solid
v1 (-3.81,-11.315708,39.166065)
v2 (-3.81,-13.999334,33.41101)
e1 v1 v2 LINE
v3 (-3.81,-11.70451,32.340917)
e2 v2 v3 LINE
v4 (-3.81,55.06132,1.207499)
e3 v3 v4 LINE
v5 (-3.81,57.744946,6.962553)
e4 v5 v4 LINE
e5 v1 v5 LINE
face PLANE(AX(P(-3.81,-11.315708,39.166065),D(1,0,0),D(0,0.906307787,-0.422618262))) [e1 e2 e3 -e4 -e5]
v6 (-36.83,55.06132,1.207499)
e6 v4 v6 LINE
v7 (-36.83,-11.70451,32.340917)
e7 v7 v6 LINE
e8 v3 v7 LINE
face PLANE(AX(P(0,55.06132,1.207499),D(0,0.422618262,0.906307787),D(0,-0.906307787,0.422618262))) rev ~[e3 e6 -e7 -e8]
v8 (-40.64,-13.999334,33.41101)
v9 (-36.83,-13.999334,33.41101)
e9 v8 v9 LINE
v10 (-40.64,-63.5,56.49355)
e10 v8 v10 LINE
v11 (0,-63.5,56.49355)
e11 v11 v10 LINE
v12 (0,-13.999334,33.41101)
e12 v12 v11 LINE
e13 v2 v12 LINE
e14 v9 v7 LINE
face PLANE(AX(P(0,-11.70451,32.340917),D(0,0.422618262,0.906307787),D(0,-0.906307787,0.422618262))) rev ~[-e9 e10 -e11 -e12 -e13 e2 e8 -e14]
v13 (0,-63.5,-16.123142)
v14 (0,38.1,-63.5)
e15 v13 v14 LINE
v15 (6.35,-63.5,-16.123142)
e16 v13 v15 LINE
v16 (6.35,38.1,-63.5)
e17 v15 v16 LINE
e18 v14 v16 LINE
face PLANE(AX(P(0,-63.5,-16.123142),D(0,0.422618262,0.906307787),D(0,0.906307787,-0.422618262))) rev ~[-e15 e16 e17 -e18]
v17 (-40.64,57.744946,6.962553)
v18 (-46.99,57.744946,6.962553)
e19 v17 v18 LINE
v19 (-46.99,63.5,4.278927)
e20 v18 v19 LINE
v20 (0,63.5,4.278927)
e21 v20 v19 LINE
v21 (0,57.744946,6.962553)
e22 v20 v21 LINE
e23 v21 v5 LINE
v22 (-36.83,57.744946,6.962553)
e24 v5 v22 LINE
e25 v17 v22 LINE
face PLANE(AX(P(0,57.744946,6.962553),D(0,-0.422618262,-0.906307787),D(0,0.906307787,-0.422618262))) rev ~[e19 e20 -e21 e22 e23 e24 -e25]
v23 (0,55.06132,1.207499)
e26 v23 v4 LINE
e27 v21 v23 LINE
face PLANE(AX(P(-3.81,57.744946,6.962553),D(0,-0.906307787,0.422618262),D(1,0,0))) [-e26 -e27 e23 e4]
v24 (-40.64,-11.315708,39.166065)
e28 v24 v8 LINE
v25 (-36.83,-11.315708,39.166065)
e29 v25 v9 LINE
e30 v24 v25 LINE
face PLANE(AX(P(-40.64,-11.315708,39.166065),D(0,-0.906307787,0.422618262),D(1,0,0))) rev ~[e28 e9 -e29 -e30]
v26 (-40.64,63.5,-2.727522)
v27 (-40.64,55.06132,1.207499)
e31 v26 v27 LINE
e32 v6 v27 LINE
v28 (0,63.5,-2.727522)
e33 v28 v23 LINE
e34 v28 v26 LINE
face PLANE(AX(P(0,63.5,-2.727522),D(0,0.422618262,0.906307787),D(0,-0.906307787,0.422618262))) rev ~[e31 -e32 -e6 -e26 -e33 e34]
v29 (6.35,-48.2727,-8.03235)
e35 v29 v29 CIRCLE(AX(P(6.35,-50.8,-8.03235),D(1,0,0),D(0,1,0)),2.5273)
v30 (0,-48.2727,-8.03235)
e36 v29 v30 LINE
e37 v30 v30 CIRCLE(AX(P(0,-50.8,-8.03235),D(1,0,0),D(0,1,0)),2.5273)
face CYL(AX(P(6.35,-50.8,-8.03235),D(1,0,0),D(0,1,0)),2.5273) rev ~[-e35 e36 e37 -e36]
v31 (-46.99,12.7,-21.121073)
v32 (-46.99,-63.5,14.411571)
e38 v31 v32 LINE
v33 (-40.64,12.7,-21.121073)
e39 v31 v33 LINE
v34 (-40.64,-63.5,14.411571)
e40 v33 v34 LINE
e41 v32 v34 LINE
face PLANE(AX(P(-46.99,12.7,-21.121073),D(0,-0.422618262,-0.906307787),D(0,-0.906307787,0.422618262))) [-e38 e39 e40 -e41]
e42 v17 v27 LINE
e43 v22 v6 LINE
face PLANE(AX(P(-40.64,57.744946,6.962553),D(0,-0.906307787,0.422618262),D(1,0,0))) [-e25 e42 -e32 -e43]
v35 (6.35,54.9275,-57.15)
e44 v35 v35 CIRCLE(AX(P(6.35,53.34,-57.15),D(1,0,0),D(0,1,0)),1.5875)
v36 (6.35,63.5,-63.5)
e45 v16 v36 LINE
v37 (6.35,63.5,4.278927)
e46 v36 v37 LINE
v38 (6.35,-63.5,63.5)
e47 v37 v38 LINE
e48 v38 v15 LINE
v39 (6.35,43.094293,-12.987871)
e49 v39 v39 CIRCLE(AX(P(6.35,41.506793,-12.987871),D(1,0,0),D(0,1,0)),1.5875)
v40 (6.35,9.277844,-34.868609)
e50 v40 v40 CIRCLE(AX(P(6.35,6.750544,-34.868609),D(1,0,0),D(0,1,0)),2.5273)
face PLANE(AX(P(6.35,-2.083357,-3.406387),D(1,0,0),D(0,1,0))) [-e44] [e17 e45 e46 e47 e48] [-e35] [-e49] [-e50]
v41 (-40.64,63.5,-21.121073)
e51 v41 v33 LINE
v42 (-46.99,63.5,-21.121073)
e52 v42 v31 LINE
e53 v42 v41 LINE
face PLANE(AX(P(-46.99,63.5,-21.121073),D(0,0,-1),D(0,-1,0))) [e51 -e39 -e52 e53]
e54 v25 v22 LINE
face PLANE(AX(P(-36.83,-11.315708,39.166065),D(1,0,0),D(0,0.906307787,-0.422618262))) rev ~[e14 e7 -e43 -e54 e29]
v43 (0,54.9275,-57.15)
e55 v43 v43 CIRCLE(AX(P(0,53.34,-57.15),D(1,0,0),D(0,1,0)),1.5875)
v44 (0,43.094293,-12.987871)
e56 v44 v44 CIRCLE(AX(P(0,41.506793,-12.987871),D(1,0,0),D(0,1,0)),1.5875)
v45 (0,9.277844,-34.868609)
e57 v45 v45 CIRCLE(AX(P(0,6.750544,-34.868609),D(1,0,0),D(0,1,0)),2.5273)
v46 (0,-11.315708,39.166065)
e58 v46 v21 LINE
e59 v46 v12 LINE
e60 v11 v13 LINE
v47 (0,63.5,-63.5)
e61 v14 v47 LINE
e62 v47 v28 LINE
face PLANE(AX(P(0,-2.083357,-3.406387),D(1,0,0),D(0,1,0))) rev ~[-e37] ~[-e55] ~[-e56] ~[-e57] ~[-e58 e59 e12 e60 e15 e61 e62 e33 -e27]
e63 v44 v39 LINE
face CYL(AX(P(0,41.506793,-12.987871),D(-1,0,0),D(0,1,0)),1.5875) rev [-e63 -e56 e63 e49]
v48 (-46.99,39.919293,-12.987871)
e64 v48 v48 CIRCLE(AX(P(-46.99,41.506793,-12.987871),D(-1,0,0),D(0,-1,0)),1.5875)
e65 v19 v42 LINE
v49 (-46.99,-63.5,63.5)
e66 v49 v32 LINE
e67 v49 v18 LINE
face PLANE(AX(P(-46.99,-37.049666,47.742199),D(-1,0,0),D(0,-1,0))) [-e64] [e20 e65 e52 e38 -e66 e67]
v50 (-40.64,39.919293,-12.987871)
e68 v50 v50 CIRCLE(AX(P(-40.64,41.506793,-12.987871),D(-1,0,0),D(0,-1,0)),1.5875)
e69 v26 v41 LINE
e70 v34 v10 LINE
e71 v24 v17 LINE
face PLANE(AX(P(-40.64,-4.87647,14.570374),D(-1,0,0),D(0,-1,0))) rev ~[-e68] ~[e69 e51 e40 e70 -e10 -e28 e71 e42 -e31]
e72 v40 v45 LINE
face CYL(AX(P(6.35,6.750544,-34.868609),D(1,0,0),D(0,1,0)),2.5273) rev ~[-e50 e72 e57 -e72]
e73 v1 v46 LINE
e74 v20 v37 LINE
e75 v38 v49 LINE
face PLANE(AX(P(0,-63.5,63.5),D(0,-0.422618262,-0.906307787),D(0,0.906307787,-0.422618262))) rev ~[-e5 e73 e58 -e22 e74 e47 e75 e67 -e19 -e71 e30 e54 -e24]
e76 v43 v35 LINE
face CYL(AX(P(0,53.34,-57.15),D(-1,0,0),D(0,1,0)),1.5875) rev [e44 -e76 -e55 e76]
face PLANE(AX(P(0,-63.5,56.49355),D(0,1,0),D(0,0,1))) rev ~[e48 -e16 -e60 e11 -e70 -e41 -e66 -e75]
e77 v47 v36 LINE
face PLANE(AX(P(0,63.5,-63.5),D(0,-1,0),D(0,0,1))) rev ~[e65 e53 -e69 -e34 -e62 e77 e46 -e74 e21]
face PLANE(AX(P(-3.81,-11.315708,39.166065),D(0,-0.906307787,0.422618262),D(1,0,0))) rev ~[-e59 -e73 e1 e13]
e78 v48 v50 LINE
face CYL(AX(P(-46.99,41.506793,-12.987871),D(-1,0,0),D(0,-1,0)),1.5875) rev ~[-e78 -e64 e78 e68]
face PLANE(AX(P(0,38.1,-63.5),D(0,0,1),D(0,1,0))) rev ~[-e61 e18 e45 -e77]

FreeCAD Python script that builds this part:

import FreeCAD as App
import Part
import Sketcher

V = App.Vector
Q = App.Units.Quantity

doc = App.newDocument("Part")
params = doc.addObject("Spreadsheet::Sheet", "Params")
for row, (alias, value) in enumerate([
    ("sketch1_width", "1 in"),
    ("sketch1_diameter", "0.125 in"),
    ("pad1_length", "0.25 in"),
    ("sketch2_length", "2.25 in"),
    ("sketch2_length2", "0.25 in"),
    ("pad2_length", "1.85 in"),
    ("sketch3_width", "2 in"),
    ("sketch3_height", "1 in"),
    ("sketch3_diameter", "0.125 in"),
    ("pad3_length", "0.25 in"),
    ("sketch4_height", "3 in"),
    ("sketch4_width", "0.15 in"),
    ("sketch5_diameter", "0.199 in"),
], start=1):
    params.set(f"A{row}", alias)
    params.set(f"B{row}", "=" + value)
    params.setAlias(f"B{row}", alias)

body = doc.addObject("PartDesign::Body", "Body")

# Sketch on YZ plane
sketch1 = body.newObject("Sketcher::SketchObject", "Sketch")
sketch1.AttachmentSupport = (doc.getObject("YZ_Plane"), [""])
sketch1.MapMode = "FlatFace"
sketch1.addGeometry(Part.LineSegment(V(63.5, -63.5, 0), V(63.5, 4.3, 0)), False)
sketch1.addGeometry(Part.LineSegment(V(63.5, 4.3, 0), V(-63.5, 63.5, 0)), False)
sketch1.addGeometry(Part.LineSegment(V(-63.5, 63.5, 0), V(-63.5, -16.1, 0)), False)
sketch1.addGeometry(Part.LineSegment(V(-63.5, -16.1, 0), V(38.1, -63.5, 0)), False)
sketch1.addGeometry(Part.LineSegment(V(38.1, -63.5, 0), V(63.5, -63.5, 0)), False)
sketch1.addGeometry(Part.Circle(V(53.3, -57.1, 0), V(0, 0, 1), 1.6), False)
sketch1.addGeometry(Part.Circle(V(41.5, -13, 0), V(0, 0, 1), 1.6), False)
sketch1.addConstraint(Sketcher.Constraint("Coincident", 0, 2, 1, 1))
sketch1.addConstraint(Sketcher.Constraint("Coincident", 1, 2, 2, 1))
sketch1.addConstraint(Sketcher.Constraint("Coincident", 2, 2, 3, 1))
sketch1.addConstraint(Sketcher.Constraint("Coincident", 3, 2, 4, 1))
sketch1.addConstraint(Sketcher.Constraint("Coincident", 4, 2, 0, 1))
sketch1.addConstraint(Sketcher.Constraint("Vertical", 0))
sketch1.addConstraint(Sketcher.Constraint("Vertical", 2))
sketch1.addConstraint(Sketcher.Constraint("Horizontal", 4))
sketch1.addConstraint(Sketcher.Constraint("Equal", 5, 6))
sketch1.addConstraint(Sketcher.Constraint("Symmetric", 1, 2, 4, 2, -1, 1))
sketch1.addConstraint(Sketcher.Constraint("Parallel", 1, 3))
sketch1.addConstraint(Sketcher.Constraint("DistanceX", 4, 1, 4, 2, Q("1 in")))
sketch1.addConstraint(Sketcher.Constraint("Diameter", 5, Q("0.125 in")))
sketch1.addConstraint(Sketcher.Constraint("Angle", 1, Q("155 deg")))
sketch1.addConstraint(Sketcher.Constraint("DistanceX", 1, 2, 0, 2, Q("5 in")))
sketch1.addConstraint(Sketcher.Constraint("DistanceY", 3, 2, 1, 2, Q("5 in")))
sketch1.addConstraint(Sketcher.Constraint("DistanceX", -1, 1, 5, 3, Q("2.1 in")))
sketch1.addConstraint(Sketcher.Constraint("DistanceY", 5, 3, -1, 1, Q("2.25 in")))
sketch1.addConstraint(Sketcher.Constraint("DistanceY", 6, 3, 0, 2, Q("17.266799 mm")))
sketch1.addConstraint(Sketcher.Constraint("DistanceX", -1, 1, 6, 3, Q("41.506793 mm")))
sketch1.setExpression("Constraints[11]", "Params.sketch1_width")
sketch1.setExpression("Constraints[12]", "Params.sketch1_diameter")
pad1 = body.newObject("PartDesign::Pad", "Pad")
pad1.Profile = sketch1
pad1.setExpression("Length", "Params.pad1_length")

# Sketch on YZ plane
sketch2 = body.newObject("Sketcher::SketchObject", "Sketch001")
sketch2.AttachmentSupport = (doc.getObject("YZ_Plane"), [""])
sketch2.MapMode = "FlatFace"
sketch2.addGeometry(Part.LineSegment(V(-12, 32, 0), V(-64, 56, 0)), False)
sketch2.addGeometry(Part.LineSegment(V(-64, 56, 0), V(-64, 64, 0)), False)
sketch2.addGeometry(Part.LineSegment(V(-64, 64, 0), V(58, 7, 0)), False)
sketch2.addGeometry(Part.LineSegment(V(58, 7, 0), V(64, 4, 0)), False)
sketch2.addGeometry(Part.LineSegment(V(64, 4, 0), V(64, -3, 0)), False)
sketch2.addGeometry(Part.LineSegment(V(64, -3, 0), V(55, 1, 0)), False)
sketch2.addGeometry(Part.LineSegment(V(55, 1, 0), V(-12, 32, 0)), False)
sketch2.addConstraint(Sketcher.Constraint("Coincident", 0, 2, 1, 1))
sketch2.addConstraint(Sketcher.Constraint("Coincident", 1, 2, 2, 1))
sketch2.addConstraint(Sketcher.Constraint("Coincident", 2, 2, 3, 1))
sketch2.addConstraint(Sketcher.Constraint("Coincident", 3, 2, 4, 1))
sketch2.addConstraint(Sketcher.Constraint("Coincident", 4, 2, 5, 1))
sketch2.addConstraint(Sketcher.Constraint("Coincident", 5, 2, 6, 1))
sketch2.addConstraint(Sketcher.Constraint("Coincident", 6, 2, 0, 1))
sketch2.addConstraint(Sketcher.Constraint("Vertical", 1))
sketch2.addConstraint(Sketcher.Constraint("Vertical", 4))
sketch2.addConstraint(Sketcher.Constraint("Parallel", 0, 2))
sketch2.addConstraint(Sketcher.Constraint("Parallel", 2, 3))
sketch2.addConstraint(Sketcher.Constraint("Parallel", 3, 5))
sketch2.addConstraint(Sketcher.Constraint("Parallel", 5, 6))
sketch2.addConstraint(Sketcher.Constraint("Angle", 0, Q("155 deg")))
sketch2.addConstraint(Sketcher.Constraint("DistanceX", 0, 2, 3, 2, Q("5 in")))
sketch2.addConstraint(Sketcher.Constraint("DistanceX", 0, 2, -1, 1, Q("2.5 in")))
sketch2.addConstraint(Sketcher.Constraint("DistanceY", -1, 1, 1, 2, Q("2.5 in")))
sketch2.addConstraint(Sketcher.Constraint("Distance", 0, Q("2.25 in")))
sketch2.addConstraint(Sketcher.Constraint("Distance", 3, Q("0.25 in")))
sketch2.addConstraint(Sketcher.Constraint("DistanceY", 1, 1, 1, 2, Q("7.00645 mm")))
sketch2.addConstraint(Sketcher.Constraint("DistanceY", -1, 1, 5, 2, Q("1.207499 mm")))
sketch2.setExpression("Constraints[17]", "Params.sketch2_length")
sketch2.setExpression("Constraints[18]", "Params.sketch2_length2")
pad2 = body.newObject("PartDesign::Pad", "Pad001")
pad2.Profile = sketch2
pad2.setExpression("Length", "Params.pad2_length")
pad2.Reversed = True

# Sketch on YZ plane
sketch3 = body.newObject("Sketcher::SketchObject", "Sketch002")
sketch3.AttachmentSupport = (doc.getObject("YZ_Plane"), [""])
sketch3.MapMode = "FlatFace"
sketch3.AttachmentOffset = App.Placement(V(0, 0, -1.85 * 25.4), App.Rotation())
sketch3.addGeometry(Part.LineSegment(V(-63.5, 63.5, 0), V(63.5, 4.3, 0)), False)
sketch3.addGeometry(Part.LineSegment(V(63.5, 4.3, 0), V(63.5, -21.1, 0)), False)
sketch3.addGeometry(Part.LineSegment(V(63.5, -21.1, 0), V(12.7, -21.1, 0)), False)
sketch3.addGeometry(Part.LineSegment(V(12.7, -21.1, 0), V(-63.5, 14.4, 0)), False)
sketch3.addGeometry(Part.LineSegment(V(-63.5, 14.4, 0), V(-63.5, 63.5, 0)), False)
sketch3.addGeometry(Part.Circle(V(41.5, -13, 0), V(0, 0, 1), 1.6), False)
sketch3.addConstraint(Sketcher.Constraint("Coincident", 0, 2, 1, 1))
sketch3.addConstraint(Sketcher.Constraint("Coincident", 1, 2, 2, 1))
sketch3.addConstraint(Sketcher.Constraint("Coincident", 2, 2, 3, 1))
sketch3.addConstraint(Sketcher.Constraint("Coincident", 3, 2, 4, 1))
sketch3.addConstraint(Sketcher.Constraint("Coincident", 4, 2, 0, 1))
sketch3.addConstraint(Sketcher.Constraint("Vertical", 1))
sketch3.addConstraint(Sketcher.Constraint("Horizontal", 2))
sketch3.addConstraint(Sketcher.Constraint("Vertical", 4))
sketch3.addConstraint(Sketcher.Constraint("Parallel", 0, 3))
sketch3.addConstraint(Sketcher.Constraint("DistanceX", 2, 2, 2, 1, Q("2 in")))
sketch3.addConstraint(Sketcher.Constraint("DistanceY", 1, 2, 1, 1, Q("1 in")))
sketch3.addConstraint(Sketcher.Constraint("Diameter", 5, Q("0.125 in")))
sketch3.addConstraint(Sketcher.Constraint("Angle", 0, Q("-25 deg")))
sketch3.addConstraint(Sketcher.Constraint("DistanceX", 3, 2, 2, 2, Q("3 in")))
sketch3.addConstraint(Sketcher.Constraint("DistanceX", -1, 1, 0, 2, Q("2.5 in")))
sketch3.addConstraint(Sketcher.Constraint("DistanceY", -1, 1, 4, 2, Q("2.5 in")))
sketch3.addConstraint(Sketcher.Constraint("DistanceY", 5, 3, 0, 2, Q("17.266799 mm")))
sketch3.addConstraint(Sketcher.Constraint("DistanceX", -1, 1, 5, 3, Q("41.506793 mm")))
sketch3.setExpression("Constraints[9]", "Params.sketch3_width")
sketch3.setExpression("Constraints[10]", "Params.sketch3_height")
sketch3.setExpression("Constraints[11]", "Params.sketch3_diameter")
pad3 = body.newObject("PartDesign::Pad", "Pad002")
pad3.Profile = sketch3
pad3.setExpression("Length", "Params.pad3_length")

# Sketch on an angled plane
sketch4 = body.newObject("Sketcher::SketchObject", "Sketch003")
sketch4.Placement = App.Placement(V(0, 12.980418, 27.836596), App.Rotation(V(1, 0, 0), V(0, 0.906307787, -0.422618262), V(0, 0.422618262, 0.906307787), "ZXY"))
sketch4.addGeometry(Part.LineSegment(V(-3.8, 49.4, 0), V(-3.8, -26.8, 0)), False)
sketch4.addGeometry(Part.LineSegment(V(-3.8, -26.8, 0), V(0, -26.8, 0)), False)
sketch4.addGeometry(Part.LineSegment(V(0, -26.8, 0), V(0, 49.4, 0)), False)
sketch4.addGeometry(Part.LineSegment(V(0, 49.4, 0), V(-3.8, 49.4, 0)), False)
sketch4.addGeometry(Part.LineSegment(V(-40.6, 49.4, 0), V(-40.6, -26.8, 0)), False)
sketch4.addGeometry(Part.LineSegment(V(-40.6, -26.8, 0), V(-36.8, -26.8, 0)), False)
sketch4.addGeometry(Part.LineSegment(V(-36.8, -26.8, 0), V(-36.8, 49.4, 0)), False)
sketch4.addGeometry(Part.LineSegment(V(-36.8, 49.4, 0), V(-40.6, 49.4, 0)), False)
sketch4.addConstraint(Sketcher.Constraint("Coincident", 0, 2, 1, 1))
sketch4.addConstraint(Sketcher.Constraint("Coincident", 1, 2, 2, 1))
sketch4.addConstraint(Sketcher.Constraint("Coincident", 2, 2, 3, 1))
sketch4.addConstraint(Sketcher.Constraint("Coincident", 3, 2, 0, 1))
sketch4.addConstraint(Sketcher.Constraint("Coincident", 4, 2, 5, 1))
sketch4.addConstraint(Sketcher.Constraint("Coincident", 5, 2, 6, 1))
sketch4.addConstraint(Sketcher.Constraint("Coincident", 6, 2, 7, 1))
sketch4.addConstraint(Sketcher.Constraint("Coincident", 7, 2, 4, 1))
sketch4.addConstraint(Sketcher.Constraint("Vertical", 0))
sketch4.addConstraint(Sketcher.Constraint("Horizontal", 1))
sketch4.addConstraint(Sketcher.Constraint("Vertical", 2))
sketch4.addConstraint(Sketcher.Constraint("Horizontal", 3))
sketch4.addConstraint(Sketcher.Constraint("Vertical", 4))
sketch4.addConstraint(Sketcher.Constraint("Horizontal", 5))
sketch4.addConstraint(Sketcher.Constraint("Vertical", 6))
sketch4.addConstraint(Sketcher.Constraint("Horizontal", 7))
sketch4.addConstraint(Sketcher.Constraint("PointOnObject", 1, 2, -2))
sketch4.addConstraint(Sketcher.Constraint("Horizontal", 1, 2, 4, 2))
sketch4.addConstraint(Sketcher.Constraint("Horizontal", 3, 2, 6, 2))
sketch4.addConstraint(Sketcher.Constraint("Equal", 3, 5))
sketch4.addConstraint(Sketcher.Constraint("DistanceY", 0, 2, 0, 1, Q("3 in")))
sketch4.addConstraint(Sketcher.Constraint("DistanceX", 1, 1, 1, 2, Q("0.15 in")))
sketch4.addConstraint(Sketcher.Constraint("DistanceX", 4, 2, -1, 1, Q("1.6 in")))
sketch4.addConstraint(Sketcher.Constraint("DistanceY", 0, 2, -1, 1, Q("26.807808 mm")))
sketch4.setExpression("Constraints[20]", "Params.sketch4_height")
sketch4.setExpression("Constraints[21]", "Params.sketch4_width")
pocket1 = body.newObject("PartDesign::Pocket", "Pocket")
pocket1.Profile = sketch4
pocket1.Type = "ThroughAll"

# Sketch on YZ plane
sketch5 = body.newObject("Sketcher::SketchObject", "Sketch004")
sketch5.AttachmentSupport = (doc.getObject("YZ_Plane"), [""])
sketch5.MapMode = "FlatFace"
sketch5.AttachmentOffset = App.Placement(V(0, 0, 0.25 * 25.4), App.Rotation())
sketch5.addGeometry(Part.Circle(V(-50.8, -8, 0), V(0, 0, 1), 2.5), False)
sketch5.addGeometry(Part.Circle(V(6.8, -34.9, 0), V(0, 0, 1), 2.5), False)
sketch5.addConstraint(Sketcher.Constraint("Equal", 0, 1))
sketch5.addConstraint(Sketcher.Constraint("Diameter", 0, Q("0.199 in")))
sketch5.addConstraint(Sketcher.Constraint("DistanceX", 0, 3, -1, 1, Q("2 in")))
sketch5.addConstraint(Sketcher.Constraint("DistanceY", 0, 3, -1, 1, Q("8.03235 mm")))
sketch5.addConstraint(Sketcher.Constraint("DistanceY", 1, 3, -1, 1, Q("34.868609 mm")))
sketch5.addConstraint(Sketcher.Constraint("DistanceX", -1, 1, 1, 3, Q("6.750544 mm")))
sketch5.setExpression("Constraints[1]", "Params.sketch5_diameter")
pocket2 = body.newObject("PartDesign::Pocket", "Pocket001")
pocket2.Profile = sketch5
pocket2.Type = "ThroughAll"

doc.recompute()
